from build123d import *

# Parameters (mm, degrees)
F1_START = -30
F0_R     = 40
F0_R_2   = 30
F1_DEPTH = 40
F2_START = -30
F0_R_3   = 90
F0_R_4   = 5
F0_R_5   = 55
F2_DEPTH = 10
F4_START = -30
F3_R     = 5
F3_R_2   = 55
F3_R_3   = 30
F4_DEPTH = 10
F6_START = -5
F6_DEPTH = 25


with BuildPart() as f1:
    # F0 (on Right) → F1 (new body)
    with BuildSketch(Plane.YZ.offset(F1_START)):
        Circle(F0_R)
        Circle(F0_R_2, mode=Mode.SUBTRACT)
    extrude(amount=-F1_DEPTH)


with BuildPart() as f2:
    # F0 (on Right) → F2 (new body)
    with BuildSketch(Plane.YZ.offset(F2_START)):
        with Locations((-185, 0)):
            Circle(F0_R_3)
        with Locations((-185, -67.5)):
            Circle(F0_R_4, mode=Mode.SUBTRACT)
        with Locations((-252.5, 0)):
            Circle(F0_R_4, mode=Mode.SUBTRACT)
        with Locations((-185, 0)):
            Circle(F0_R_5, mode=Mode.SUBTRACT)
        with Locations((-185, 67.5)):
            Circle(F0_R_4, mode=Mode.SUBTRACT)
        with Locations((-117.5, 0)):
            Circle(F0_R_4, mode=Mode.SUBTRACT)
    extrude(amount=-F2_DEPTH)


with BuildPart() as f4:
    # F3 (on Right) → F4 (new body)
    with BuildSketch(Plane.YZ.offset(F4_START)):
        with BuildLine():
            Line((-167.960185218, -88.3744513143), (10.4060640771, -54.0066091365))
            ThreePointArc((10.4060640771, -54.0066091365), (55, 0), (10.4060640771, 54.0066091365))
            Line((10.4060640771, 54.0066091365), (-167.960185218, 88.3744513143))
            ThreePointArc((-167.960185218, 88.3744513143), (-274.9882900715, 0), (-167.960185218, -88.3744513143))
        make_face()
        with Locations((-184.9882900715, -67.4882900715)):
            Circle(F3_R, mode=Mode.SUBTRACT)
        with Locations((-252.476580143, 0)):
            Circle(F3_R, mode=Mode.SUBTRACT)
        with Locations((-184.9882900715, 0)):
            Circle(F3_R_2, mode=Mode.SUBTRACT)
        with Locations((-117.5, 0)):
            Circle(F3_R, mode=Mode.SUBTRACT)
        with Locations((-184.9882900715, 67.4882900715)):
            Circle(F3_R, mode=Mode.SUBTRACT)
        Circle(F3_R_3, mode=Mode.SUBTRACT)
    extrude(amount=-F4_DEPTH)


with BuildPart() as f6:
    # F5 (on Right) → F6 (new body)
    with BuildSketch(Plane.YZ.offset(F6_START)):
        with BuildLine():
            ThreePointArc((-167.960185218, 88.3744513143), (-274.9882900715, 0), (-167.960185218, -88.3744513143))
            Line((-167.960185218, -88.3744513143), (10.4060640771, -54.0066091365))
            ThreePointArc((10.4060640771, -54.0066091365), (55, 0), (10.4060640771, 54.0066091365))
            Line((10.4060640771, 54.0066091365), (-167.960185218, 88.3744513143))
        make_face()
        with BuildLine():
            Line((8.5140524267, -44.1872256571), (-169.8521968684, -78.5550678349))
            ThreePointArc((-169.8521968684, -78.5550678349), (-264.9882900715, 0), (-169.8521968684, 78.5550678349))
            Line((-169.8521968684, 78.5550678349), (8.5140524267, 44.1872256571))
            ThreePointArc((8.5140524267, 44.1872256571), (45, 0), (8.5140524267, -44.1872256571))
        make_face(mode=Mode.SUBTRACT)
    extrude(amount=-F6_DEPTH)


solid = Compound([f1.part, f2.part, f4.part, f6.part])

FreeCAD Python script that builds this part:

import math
import FreeCAD as App
import Part
import Sketcher
from FreeCAD import Vector
Q = App.Units.Quantity

doc = App.newDocument("Part")
body = doc.addObject("PartDesign::Body", "Body")

# Sketch on YZ plane
sketch1 = body.newObject("Sketcher::SketchObject", "Sketch")
sketch1.AttachmentSupport = (doc.getObject("YZ_Plane"), [""])
sketch1.MapMode = "FlatFace"
sketch1.AttachmentOffset = App.Placement(Vector(0, 0, -30), App.Rotation())
sketch1.addGeometry(Part.Circle(Vector(0, 0, 0), Vector(0, 0, 1), 40), False)
sketch1.addGeometry(Part.Circle(Vector(0, 0, 0), Vector(0, 0, 1), 30), False)
sketch1.addConstraint(Sketcher.Constraint("Coincident", 0, 3, -1, 1))
sketch1.addConstraint(Sketcher.Constraint("Coincident", 1, 3, -1, 1))
sketch1.addConstraint(Sketcher.Constraint("Diameter", 0, Q("80 mm")))
sketch1.addConstraint(Sketcher.Constraint("Diameter", 1, Q("60 mm")))
pad1 = body.newObject("PartDesign::Pad", "Pad")
pad1.Profile = sketch1
pad1.Length = 40
pad1.Reversed = True
body2 = doc.addObject("PartDesign::Body", "Body001")

# Sketch on YZ plane
sketch2 = body2.newObject("Sketcher::SketchObject", "Sketch001")
sketch2.AttachmentSupport = (doc.getObject("YZ_Plane001"), [""])
sketch2.MapMode = "FlatFace"
sketch2.AttachmentOffset = App.Placement(Vector(0, 0, -30), App.Rotation())
sketch2.addGeometry(Part.Circle(Vector(-185, 0, 0), Vector(0, 0, 1), 90), False)
sketch2.addGeometry(Part.Circle(Vector(-185, -68, 0), Vector(0, 0, 1), 5), False)
sketch2.addGeometry(Part.Circle(Vector(-252, 0, 0), Vector(0, 0, 1), 5), False)
sketch2.addGeometry(Part.Circle(Vector(-185, 0, 0), Vector(0, 0, 1), 55), False)
sketch2.addGeometry(Part.Circle(Vector(-118, 0, 0), Vector(0, 0, 1), 5), False)
sketch2.addGeometry(Part.Circle(Vector(-185, 68, 0), Vector(0, 0, 1), 5), False)
sketch2.addConstraint(Sketcher.Constraint("Coincident", 3, 3, 0, 3))
sketch2.addConstraint(Sketcher.Constraint("Equal", 1, 2))
sketch2.addConstraint(Sketcher.Constraint("Equal", 2, 4))
sketch2.addConstraint(Sketcher.Constraint("Equal", 4, 5))
sketch2.addConstraint(Sketcher.Constraint("Symmetric", 1, 3, 5, 3, -1))
sketch2.addConstraint(Sketcher.Constraint("PointOnObject", 0, 3, -1))
sketch2.addConstraint(Sketcher.Constraint("PointOnObject", 2, 3, -1))
sketch2.addConstraint(Sketcher.Constraint("PointOnObject", 4, 3, -1))
sketch2.addConstraint(Sketcher.Constraint("Vertical", 0, 3, 1, 3))
sketch2.addConstraint(Sketcher.Constraint("Diameter", 0, Q("180 mm")))
sketch2.addConstraint(Sketcher.Constraint("Diameter", 1, Q("10 mm")))
sketch2.addConstraint(Sketcher.Constraint("Diameter", 3, Q("110 mm")))
sketch2.addConstraint(Sketcher.Constraint("DistanceX", 0, 3, -1, 1, Q("185 mm")))
sketch2.addConstraint(Sketcher.Constraint("DistanceX", 2, 3, 4, 3, Q("135 mm")))
sketch2.addConstraint(Sketcher.Constraint("DistanceY", 1, 3, 5, 3, Q("135 mm")))
sketch2.addConstraint(Sketcher.Constraint("DistanceX", 2, 3, -1, 1, Q("252.5 mm")))
pad2 = body2.newObject("PartDesign::Pad", "Pad001")
pad2.Profile = sketch2
pad2.Length = 10
pad2.Reversed = True
body3 = doc.addObject("PartDesign::Body", "Body002")

# Sketch on YZ plane
sketch3 = body3.newObject("Sketcher::SketchObject", "Sketch002")
sketch3.AttachmentSupport = (doc.getObject("YZ_Plane002"), [""])
sketch3.MapMode = "FlatFace"
sketch3.AttachmentOffset = App.Placement(Vector(0, 0, -30), App.Rotation())
sketch3.addGeometry(Part.LineSegment(Vector(-168, -88, 0), Vector(10, -54, 0)), False)
sketch3.addGeometry(Part.ArcOfCircle(Part.Circle(Vector(0, 0, 0), Vector(0, 0, 1), 55), math.radians(-79), math.radians(79)), False)
sketch3.addGeometry(Part.LineSegment(Vector(10, 54, 0), Vector(-168, 88, 0)), False)
sketch3.addGeometry(Part.ArcOfCircle(Part.Circle(Vector(-185, 0, 0), Vector(0, 0, 1), 90), math.radians(79), math.radians(281)), False)
sketch3.addGeometry(Part.Circle(Vector(-185, -67, 0), Vector(0, 0, 1), 5), False)
sketch3.addGeometry(Part.Circle(Vector(-185, 0, 0), Vector(0, 0, 1), 55), False)
sketch3.addGeometry(Part.Circle(Vector(-252, 0, 0), Vector(0, 0, 1), 5), False)
sketch3.addGeometry(Part.Circle(Vector(-118, 0, 0), Vector(0, 0, 1), 5), False)
sketch3.addGeometry(Part.Circle(Vector(-185, 67, 0), Vector(0, 0, 1), 5), False)
sketch3.addGeometry(Part.Circle(Vector(0, 0, 0), Vector(0, 0, 1), 30), False)
sketch3.addConstraint(Sketcher.Constraint("Tangent", 0, 2, 1, 1))
sketch3.addConstraint(Sketcher.Constraint("Tangent", 1, 2, 2, 1))
sketch3.addConstraint(Sketcher.Constraint("Tangent", 2, 2, 3, 1))
sketch3.addConstraint(Sketcher.Constraint("Tangent", 3, 2, 0, 1))
sketch3.addConstraint(Sketcher.Constraint("Coincident", 1, 3, -1, 1))
sketch3.addConstraint(Sketcher.Constraint("Coincident", 9, 3, -1, 1))
sketch3.addConstraint(Sketcher.Constraint("Coincident", 5, 3, 3, 3))
sketch3.addConstraint(Sketcher.Constraint("Equal", 1, 5))
sketch3.addConstraint(Sketcher.Constraint("Equal", 4, 6))
sketch3.addConstraint(Sketcher.Constraint("Equal", 6, 7))
sketch3.addConstraint(Sketcher.Constraint("Equal", 7, 8))
sketch3.addConstraint(Sketcher.Constraint("Symmetric", 4, 3, 8, 3, -1))
sketch3.addConstraint(Sketcher.Constraint("PointOnObject", 3, 3, -1))
sketch3.addConstraint(Sketcher.Constraint("PointOnObject", 6, 3, -1))
sketch3.addConstraint(Sketcher.Constraint("PointOnObject", 7, 3, -1))
sketch3.addConstraint(Sketcher.Constraint("Vertical", 3, 3, 4, 3))
sketch3.addConstraint(Sketcher.Constraint("Diameter", 4, Q("10 mm")))
sketch3.addConstraint(Sketcher.Constraint("Diameter", 5, Q("110 mm")))
sketch3.addConstraint(Sketcher.Constraint("Diameter", 9, Q("60 mm")))
sketch3.addConstraint(Sketcher.Constraint("Radius", 3, Q("90 mm")))
sketch3.addConstraint(Sketcher.Constraint("DistanceX", 7, 3, -1, 1, Q("117.5 mm")))
sketch3.addConstraint(Sketcher.Constraint("DistanceX", 3, 3, -1, 1, Q("184.98829 mm")))
sketch3.addConstraint(Sketcher.Constraint("DistanceY", 4, 3, -1, 1, Q("67.48829 mm")))
sketch3.addConstraint(Sketcher.Constraint("DistanceX", 6, 3, -1, 1, Q("252.47658 mm")))
pad3 = body3.newObject("PartDesign::Pad", "Pad002")
pad3.Profile = sketch3
pad3.Length = 10
pad3.Reversed = True
body4 = doc.addObject("PartDesign::Body", "Body003")

# Sketch on YZ plane
sketch4 = body4.newObject("Sketcher::SketchObject", "Sketch003")
sketch4.AttachmentSupport = (doc.getObject("YZ_Plane003"), [""])
sketch4.MapMode = "FlatFace"
sketch4.AttachmentOffset = App.Placement(Vector(0, 0, -5), App.Rotation())
sketch4.addGeometry(Part.ArcOfCircle(Part.Circle(Vector(-185, 0, 0), Vector(0, 0, 1), 90), math.radians(79), math.radians(281)), False)
sketch4.addGeometry(Part.LineSegment(Vector(-168, -88, 0), Vector(10, -54, 0)), False)
sketch4.addGeometry(Part.ArcOfCircle(Part.Circle(Vector(0, 0, 0), Vector(0, 0, 1), 55), math.radians(-79), math.radians(79)), False)
sketch4.addGeometry(Part.LineSegment(Vector(10, 54, 0), Vector(-168, 88, 0)), False)
sketch4.addGeometry(Part.ArcOfCircle(Part.Circle(Vector(0, 0, 0), Vector(0, 0, 1), 45), math.radians(-79), math.radians(79)), False)
sketch4.addGeometry(Part.LineSegment(Vector(9, -44, 0), Vector(-170, -79, 0)), False)
sketch4.addGeometry(Part.ArcOfCircle(Part.Circle(Vector(-185, 0, 0), Vector(0, 0, 1), 80), math.radians(79), math.radians(281)), False)
sketch4.addGeometry(Part.LineSegment(Vector(-170, 79, 0), Vector(9, 44, 0)), False)
sketch4.addConstraint(Sketcher.Constraint("Tangent", 0, 2, 1, 1))
sketch4.addConstraint(Sketcher.Constraint("Tangent", 1, 2, 2, 1))
sketch4.addConstraint(Sketcher.Constraint("Tangent", 2, 2, 3, 1))
sketch4.addConstraint(Sketcher.Constraint("Tangent", 3, 2, 0, 1))
sketch4.addConstraint(Sketcher.Constraint("Tangent", 4, 1, 5, 1))
sketch4.addConstraint(Sketcher.Constraint("Tangent", 5, 2, 6, 2))
sketch4.addConstraint(Sketcher.Constraint("Tangent", 6, 1, 7, 1))
sketch4.addConstraint(Sketcher.Constraint("Tangent", 7, 2, 4, 2))
sketch4.addConstraint(Sketcher.Constraint("Coincident", 2, 3, -1, 1))
sketch4.addConstraint(Sketcher.Constraint("Coincident", 4, 3, -1, 1))
sketch4.addConstraint(Sketcher.Constraint("Coincident", 6, 3, 0, 3))
sketch4.addConstraint(Sketcher.Constraint("PointOnObject", 0, 3, -1))
sketch4.addConstraint(Sketcher.Constraint("Parallel", 1, 5))
sketch4.addConstraint(Sketcher.Constraint("Radius", 0, Q("90 mm")))
sketch4.addConstraint(Sketcher.Constraint("Radius", 2, Q("55 mm")))
sketch4.addConstraint(Sketcher.Constraint("Radius", 4, Q("45 mm")))
sketch4.addConstraint(Sketcher.Constraint("DistanceX", 0, 3, -1, 1, Q("184.98829 mm")))
pad4 = body4.newObject("PartDesign::Pad", "Pad003")
pad4.Profile = sketch4
pad4.Length = 25
pad4.Reversed = True

doc.recompute()
